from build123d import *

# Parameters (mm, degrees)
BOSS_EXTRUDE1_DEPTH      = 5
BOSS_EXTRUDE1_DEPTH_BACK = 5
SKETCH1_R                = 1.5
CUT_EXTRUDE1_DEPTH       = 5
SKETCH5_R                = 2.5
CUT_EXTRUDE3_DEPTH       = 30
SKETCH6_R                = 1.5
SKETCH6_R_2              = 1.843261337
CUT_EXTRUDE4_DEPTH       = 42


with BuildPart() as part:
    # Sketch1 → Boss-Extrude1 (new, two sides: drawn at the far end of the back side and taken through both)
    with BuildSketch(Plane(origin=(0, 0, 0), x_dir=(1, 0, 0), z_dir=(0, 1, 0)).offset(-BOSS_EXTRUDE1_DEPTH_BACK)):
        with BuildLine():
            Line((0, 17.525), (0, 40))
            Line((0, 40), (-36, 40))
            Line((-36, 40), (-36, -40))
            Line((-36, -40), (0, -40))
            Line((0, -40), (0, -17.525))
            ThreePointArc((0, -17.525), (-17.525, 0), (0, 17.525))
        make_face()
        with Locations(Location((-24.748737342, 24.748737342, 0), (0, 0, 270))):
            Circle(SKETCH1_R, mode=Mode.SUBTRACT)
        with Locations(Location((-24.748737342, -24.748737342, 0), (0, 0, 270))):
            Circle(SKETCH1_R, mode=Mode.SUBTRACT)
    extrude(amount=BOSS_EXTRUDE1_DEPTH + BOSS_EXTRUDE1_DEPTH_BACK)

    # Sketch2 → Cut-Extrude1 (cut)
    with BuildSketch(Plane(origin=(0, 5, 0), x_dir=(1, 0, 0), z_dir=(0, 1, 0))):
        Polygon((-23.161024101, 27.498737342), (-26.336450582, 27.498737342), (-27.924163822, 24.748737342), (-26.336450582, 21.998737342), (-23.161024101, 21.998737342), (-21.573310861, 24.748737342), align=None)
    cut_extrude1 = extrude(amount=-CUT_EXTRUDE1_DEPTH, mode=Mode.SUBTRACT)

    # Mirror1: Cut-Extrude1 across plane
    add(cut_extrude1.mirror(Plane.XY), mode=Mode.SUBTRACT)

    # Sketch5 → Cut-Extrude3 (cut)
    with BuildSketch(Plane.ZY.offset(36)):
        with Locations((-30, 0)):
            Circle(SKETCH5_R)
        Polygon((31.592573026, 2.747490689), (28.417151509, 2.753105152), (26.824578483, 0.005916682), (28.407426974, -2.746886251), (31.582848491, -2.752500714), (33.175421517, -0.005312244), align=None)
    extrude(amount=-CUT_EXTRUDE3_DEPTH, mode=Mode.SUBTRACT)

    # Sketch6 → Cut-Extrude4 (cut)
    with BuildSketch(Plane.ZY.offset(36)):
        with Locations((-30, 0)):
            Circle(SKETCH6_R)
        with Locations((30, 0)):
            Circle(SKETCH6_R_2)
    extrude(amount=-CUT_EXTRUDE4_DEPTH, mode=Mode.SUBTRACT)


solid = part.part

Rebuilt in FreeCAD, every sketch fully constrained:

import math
import FreeCAD as App
import Part
import Sketcher
Q = App.Units.Quantity

doc = App.newDocument("Part")
params = doc.addObject("Spreadsheet::Sheet", "Params")
for row, (alias, value) in enumerate([
    ("sketch1_diameter", "3 mm"),
    ("sketch1_width", "36 mm"),
    ("sketch1_height", "80 mm"),
    ("pad1_length", "5 mm"),
    ("pad1_length2", "5 mm"),
    ("pocket1_length", "5 mm"),
    ("sketch3_diameter", "5 mm"),
    ("pocket2_length", "30 mm"),
    ("sketch4_diameter", "3 mm"),
    ("pocket3_length", "42 mm"),
], start=1):
    params.set(f"A{row}", alias)
    params.set(f"B{row}", "=" + value)
    params.setAlias(f"B{row}", alias)

body = doc.addObject("PartDesign::Body", "Body")

sketch1 = body.newObject("Sketcher::SketchObject", "Sketch")
sketch1.AttachmentSupport = (doc.getObject("XZ_Plane"), [""])
sketch1.MapMode = "FlatFace"
sketch1.addGeometry([
    Part.LineSegment(App.Vector(0, -17.5, 0), App.Vector(0, -40, 0)),
    Part.LineSegment(App.Vector(0, -40, 0), App.Vector(-36, -40, 0)),
    Part.LineSegment(App.Vector(-36, -40, 0), App.Vector(-36, 40, 0)),
    Part.LineSegment(App.Vector(-36, 40, 0), App.Vector(0, 40, 0)),
    Part.LineSegment(App.Vector(0, 40, 0), App.Vector(0, 17.5, 0)),
    Part.ArcOfCircle(Part.Circle(App.Vector(0, 0, 0), App.Vector(0, 0, 1), 17.5), math.radians(90), math.radians(270)),
    Part.Circle(App.Vector(-24.7, 24.7, 0), App.Vector(0, 0, 1), 1.5),
    Part.Circle(App.Vector(-24.7, -24.7, 0), App.Vector(0, 0, 1), 1.5),
], False)
sketch1.addConstraint([
    Sketcher.Constraint("Coincident", 0, 2, 1, 1),
    Sketcher.Constraint("Coincident", 1, 2, 2, 1),
    Sketcher.Constraint("Coincident", 2, 2, 3, 1),
    Sketcher.Constraint("Coincident", 3, 2, 4, 1),
    Sketcher.Constraint("Coincident", 4, 2, 5, 1),
    Sketcher.Constraint("Coincident", 5, 2, 0, 1),
    Sketcher.Constraint("Vertical", 0),
    Sketcher.Constraint("Horizontal", 1),
    Sketcher.Constraint("Vertical", 2),
    Sketcher.Constraint("Horizontal", 3),
    Sketcher.Constraint("Vertical", 4),
    Sketcher.Constraint("Coincident", 5, 3, -1, 1),
    Sketcher.Constraint("Equal", 6, 7),
    Sketcher.Constraint("Symmetric", 0, 2, 3, 2, -1, 1),
    Sketcher.Constraint("Symmetric", 6, 3, 7, 3, -1),
    Sketcher.Constraint("PointOnObject", 0, 2, -2),
    Sketcher.Constraint("Diameter", 6, Q("3 mm")),
    Sketcher.Constraint("DistanceX", 1, 2, 1, 1, Q("36 mm")),
    Sketcher.Constraint("DistanceY", 2, 1, 2, 2, Q("80 mm")),
    Sketcher.Constraint("Radius", 5, Q("17.525 mm")),
    Sketcher.Constraint("DistanceX", 6, 3, -1, 1, Q("24.748737 mm")),
    Sketcher.Constraint("DistanceY", -1, 1, 6, 3, Q("24.748737 mm")),
])
sketch1.setExpression("Constraints[16]", "Params.sketch1_diameter")
sketch1.setExpression("Constraints[17]", "Params.sketch1_width")
sketch1.setExpression("Constraints[18]", "Params.sketch1_height")
pad1 = body.newObject("PartDesign::Pad", "Pad")
pad1.Profile = sketch1
pad1.Type = "TwoLengths"
pad1.setExpression("Length", "Params.pad1_length")
pad1.setExpression("Length2", "Params.pad1_length2")
pad1.Reversed = True

sketch2 = body.newObject("Sketcher::SketchObject", "Sketch001")
sketch2.AttachmentSupport = (doc.getObject("XZ_Plane"), [""])
sketch2.MapMode = "FlatFace"
sketch2.AttachmentOffset = App.Placement(App.Vector(0, 0, -5), App.Rotation())
sketch2.addGeometry([
    Part.LineSegment(App.Vector(-23.2, -27.5, 0), App.Vector(-26.3, -27.5, 0)),
    Part.LineSegment(App.Vector(-26.3, -27.5, 0), App.Vector(-27.9, -24.7, 0)),
    Part.LineSegment(App.Vector(-27.9, -24.7, 0), App.Vector(-26.3, -22, 0)),
    Part.LineSegment(App.Vector(-26.3, -22, 0), App.Vector(-23.2, -22, 0)),
    Part.LineSegment(App.Vector(-23.2, -22, 0), App.Vector(-21.6, -24.7, 0)),
    Part.LineSegment(App.Vector(-21.6, -24.7, 0), App.Vector(-23.2, -27.5, 0)),
], False)
sketch2.addConstraint([
    Sketcher.Constraint("Coincident", 0, 2, 1, 1),
    Sketcher.Constraint("Coincident", 1, 2, 2, 1),
    Sketcher.Constraint("Coincident", 2, 2, 3, 1),
    Sketcher.Constraint("Coincident", 3, 2, 4, 1),
    Sketcher.Constraint("Coincident", 4, 2, 5, 1),
    Sketcher.Constraint("Coincident", 5, 2, 0, 1),
    Sketcher.Constraint("Horizontal", 0),
    Sketcher.Constraint("Horizontal", 3),
    Sketcher.Constraint("Parallel", 1, 4),
    Sketcher.Constraint("Parallel", 2, 5),
    Sketcher.Constraint("Horizontal", 1, 2, 4, 2),
    Sketcher.Constraint("Vertical", 0, 2, 2, 2),
    Sketcher.Constraint("Vertical", 3, 2, 5, 2),
    Sketcher.Constraint("Angle", 1, Q("120 deg")),
    Sketcher.Constraint("DistanceY", 0, 2, 2, 2, Q("5.5 mm")),
    Sketcher.Constraint("DistanceX", 0, 2, 0, 1, Q("3.175426 mm")),
    Sketcher.Constraint("DistanceX", 0, 2, -1, 1, Q("26.336451 mm")),
    Sketcher.Constraint("DistanceY", 0, 2, -1, 1, Q("27.498737 mm")),
])
pocket1 = body.newObject("PartDesign::Pocket", "Pocket")
pocket1.Profile = sketch2
pocket1.setExpression("Length", "Params.pocket1_length")
pocket1.Reversed = True
doc.recompute()

mirrored = body.newObject("PartDesign::Mirrored", "Mirrored")
mirrored.Originals = [pocket1]
mirrored.MirrorPlane = (doc.getObject("XY_Plane"), [""])
body.Tip = mirrored

sketch3 = body.newObject("Sketcher::SketchObject", "Sketch002")
sketch3.AttachmentSupport = (doc.getObject("YZ_Plane"), [""])
sketch3.MapMode = "FlatFace"
sketch3.AttachmentOffset = App.Placement(App.Vector(0, 0, -36), App.Rotation())
sketch3.addGeometry([
    Part.Circle(App.Vector(0, -30, 0), App.Vector(0, 0, 1), 2.5),
    Part.LineSegment(App.Vector(2.7, 31.6, 0), App.Vector(2.8, 28.4, 0)),
    Part.LineSegment(App.Vector(2.8, 28.4, 0), App.Vector(0, 26.8, 0)),
    Part.LineSegment(App.Vector(0, 26.8, 0), App.Vector(-2.7, 28.4, 0)),
    Part.LineSegment(App.Vector(-2.7, 28.4, 0), App.Vector(-2.8, 31.6, 0)),
    Part.LineSegment(App.Vector(-2.8, 31.6, 0), App.Vector(0, 33.2, 0)),
    Part.LineSegment(App.Vector(0, 33.2, 0), App.Vector(2.7, 31.6, 0)),
], False)
sketch3.addConstraint([
    Sketcher.Constraint("Coincident", 1, 2, 2, 1),
    Sketcher.Constraint("Coincident", 2, 2, 3, 1),
    Sketcher.Constraint("Coincident", 3, 2, 4, 1),
    Sketcher.Constraint("Coincident", 4, 2, 5, 1),
    Sketcher.Constraint("Coincident", 5, 2, 6, 1),
    Sketcher.Constraint("Coincident", 6, 2, 1, 1),
    Sketcher.Constraint("PointOnObject", 0, 3, -2),
    Sketcher.Constraint("Parallel", 1, 4),
    Sketcher.Constraint("Parallel", 2, 5),
    Sketcher.Constraint("Parallel", 3, 6),
    Sketcher.Constraint("Equal", 1, 2),
    Sketcher.Constraint("Equal", 2, 3),
    Sketcher.Constraint("Equal", 3, 4),
    Sketcher.Constraint("Diameter", 0, Q("5 mm")),
    Sketcher.Constraint("DistanceY", 0, 3, -1, 1, Q("30 mm")),
    Sketcher.Constraint("DistanceX", 4, 2, -1, 1, Q("2.752501 mm")),
    Sketcher.Constraint("DistanceY", -1, 1, 1, 2, Q("28.417152 mm")),
    Sketcher.Constraint("DistanceY", -1, 1, 2, 2, Q("26.824578 mm")),
    Sketcher.Constraint("DistanceY", -1, 1, 4, 2, Q("31.582848 mm")),
    Sketcher.Constraint("DistanceX", -1, 1, 6, 2, Q("2.747491 mm")),
    Sketcher.Constraint("DistanceX", 5, 2, 2, 2, Q("0.011229 mm")),
])
sketch3.setExpression("Constraints[13]", "Params.sketch3_diameter")
pocket2 = body.newObject("PartDesign::Pocket", "Pocket001")
pocket2.Profile = sketch3
pocket2.setExpression("Length", "Params.pocket2_length")
pocket2.Reversed = True

sketch4 = body.newObject("Sketcher::SketchObject", "Sketch003")
sketch4.AttachmentSupport = (doc.getObject("YZ_Plane"), [""])
sketch4.MapMode = "FlatFace"
sketch4.AttachmentOffset = App.Placement(App.Vector(0, 0, -36), App.Rotation())
sketch4.addGeometry([
    Part.Circle(App.Vector(0, -30, 0), App.Vector(0, 0, 1), 1.5),
    Part.Circle(App.Vector(0, 30, 0), App.Vector(0, 0, 1), 1.8),
], False)
sketch4.addConstraint([
    Sketcher.Constraint("Symmetric", 0, 3, 1, 3, -1, 1),
    Sketcher.Constraint("PointOnObject", 0, 3, -2),
    Sketcher.Constraint("Diameter", 0, Q("3 mm")),
    Sketcher.Constraint("DistanceY", 0, 3, -1, 1, Q("30 mm")),
    Sketcher.Constraint("Diameter", 1, Q("3.686523 mm")),
])
sketch4.setExpression("Constraints[2]", "Params.sketch4_diameter")
pocket3 = body.newObject("PartDesign::Pocket", "Pocket002")
pocket3.Profile = sketch4
pocket3.setExpression("Length", "Params.pocket3_length")
pocket3.Reversed = True

doc.recompute()
